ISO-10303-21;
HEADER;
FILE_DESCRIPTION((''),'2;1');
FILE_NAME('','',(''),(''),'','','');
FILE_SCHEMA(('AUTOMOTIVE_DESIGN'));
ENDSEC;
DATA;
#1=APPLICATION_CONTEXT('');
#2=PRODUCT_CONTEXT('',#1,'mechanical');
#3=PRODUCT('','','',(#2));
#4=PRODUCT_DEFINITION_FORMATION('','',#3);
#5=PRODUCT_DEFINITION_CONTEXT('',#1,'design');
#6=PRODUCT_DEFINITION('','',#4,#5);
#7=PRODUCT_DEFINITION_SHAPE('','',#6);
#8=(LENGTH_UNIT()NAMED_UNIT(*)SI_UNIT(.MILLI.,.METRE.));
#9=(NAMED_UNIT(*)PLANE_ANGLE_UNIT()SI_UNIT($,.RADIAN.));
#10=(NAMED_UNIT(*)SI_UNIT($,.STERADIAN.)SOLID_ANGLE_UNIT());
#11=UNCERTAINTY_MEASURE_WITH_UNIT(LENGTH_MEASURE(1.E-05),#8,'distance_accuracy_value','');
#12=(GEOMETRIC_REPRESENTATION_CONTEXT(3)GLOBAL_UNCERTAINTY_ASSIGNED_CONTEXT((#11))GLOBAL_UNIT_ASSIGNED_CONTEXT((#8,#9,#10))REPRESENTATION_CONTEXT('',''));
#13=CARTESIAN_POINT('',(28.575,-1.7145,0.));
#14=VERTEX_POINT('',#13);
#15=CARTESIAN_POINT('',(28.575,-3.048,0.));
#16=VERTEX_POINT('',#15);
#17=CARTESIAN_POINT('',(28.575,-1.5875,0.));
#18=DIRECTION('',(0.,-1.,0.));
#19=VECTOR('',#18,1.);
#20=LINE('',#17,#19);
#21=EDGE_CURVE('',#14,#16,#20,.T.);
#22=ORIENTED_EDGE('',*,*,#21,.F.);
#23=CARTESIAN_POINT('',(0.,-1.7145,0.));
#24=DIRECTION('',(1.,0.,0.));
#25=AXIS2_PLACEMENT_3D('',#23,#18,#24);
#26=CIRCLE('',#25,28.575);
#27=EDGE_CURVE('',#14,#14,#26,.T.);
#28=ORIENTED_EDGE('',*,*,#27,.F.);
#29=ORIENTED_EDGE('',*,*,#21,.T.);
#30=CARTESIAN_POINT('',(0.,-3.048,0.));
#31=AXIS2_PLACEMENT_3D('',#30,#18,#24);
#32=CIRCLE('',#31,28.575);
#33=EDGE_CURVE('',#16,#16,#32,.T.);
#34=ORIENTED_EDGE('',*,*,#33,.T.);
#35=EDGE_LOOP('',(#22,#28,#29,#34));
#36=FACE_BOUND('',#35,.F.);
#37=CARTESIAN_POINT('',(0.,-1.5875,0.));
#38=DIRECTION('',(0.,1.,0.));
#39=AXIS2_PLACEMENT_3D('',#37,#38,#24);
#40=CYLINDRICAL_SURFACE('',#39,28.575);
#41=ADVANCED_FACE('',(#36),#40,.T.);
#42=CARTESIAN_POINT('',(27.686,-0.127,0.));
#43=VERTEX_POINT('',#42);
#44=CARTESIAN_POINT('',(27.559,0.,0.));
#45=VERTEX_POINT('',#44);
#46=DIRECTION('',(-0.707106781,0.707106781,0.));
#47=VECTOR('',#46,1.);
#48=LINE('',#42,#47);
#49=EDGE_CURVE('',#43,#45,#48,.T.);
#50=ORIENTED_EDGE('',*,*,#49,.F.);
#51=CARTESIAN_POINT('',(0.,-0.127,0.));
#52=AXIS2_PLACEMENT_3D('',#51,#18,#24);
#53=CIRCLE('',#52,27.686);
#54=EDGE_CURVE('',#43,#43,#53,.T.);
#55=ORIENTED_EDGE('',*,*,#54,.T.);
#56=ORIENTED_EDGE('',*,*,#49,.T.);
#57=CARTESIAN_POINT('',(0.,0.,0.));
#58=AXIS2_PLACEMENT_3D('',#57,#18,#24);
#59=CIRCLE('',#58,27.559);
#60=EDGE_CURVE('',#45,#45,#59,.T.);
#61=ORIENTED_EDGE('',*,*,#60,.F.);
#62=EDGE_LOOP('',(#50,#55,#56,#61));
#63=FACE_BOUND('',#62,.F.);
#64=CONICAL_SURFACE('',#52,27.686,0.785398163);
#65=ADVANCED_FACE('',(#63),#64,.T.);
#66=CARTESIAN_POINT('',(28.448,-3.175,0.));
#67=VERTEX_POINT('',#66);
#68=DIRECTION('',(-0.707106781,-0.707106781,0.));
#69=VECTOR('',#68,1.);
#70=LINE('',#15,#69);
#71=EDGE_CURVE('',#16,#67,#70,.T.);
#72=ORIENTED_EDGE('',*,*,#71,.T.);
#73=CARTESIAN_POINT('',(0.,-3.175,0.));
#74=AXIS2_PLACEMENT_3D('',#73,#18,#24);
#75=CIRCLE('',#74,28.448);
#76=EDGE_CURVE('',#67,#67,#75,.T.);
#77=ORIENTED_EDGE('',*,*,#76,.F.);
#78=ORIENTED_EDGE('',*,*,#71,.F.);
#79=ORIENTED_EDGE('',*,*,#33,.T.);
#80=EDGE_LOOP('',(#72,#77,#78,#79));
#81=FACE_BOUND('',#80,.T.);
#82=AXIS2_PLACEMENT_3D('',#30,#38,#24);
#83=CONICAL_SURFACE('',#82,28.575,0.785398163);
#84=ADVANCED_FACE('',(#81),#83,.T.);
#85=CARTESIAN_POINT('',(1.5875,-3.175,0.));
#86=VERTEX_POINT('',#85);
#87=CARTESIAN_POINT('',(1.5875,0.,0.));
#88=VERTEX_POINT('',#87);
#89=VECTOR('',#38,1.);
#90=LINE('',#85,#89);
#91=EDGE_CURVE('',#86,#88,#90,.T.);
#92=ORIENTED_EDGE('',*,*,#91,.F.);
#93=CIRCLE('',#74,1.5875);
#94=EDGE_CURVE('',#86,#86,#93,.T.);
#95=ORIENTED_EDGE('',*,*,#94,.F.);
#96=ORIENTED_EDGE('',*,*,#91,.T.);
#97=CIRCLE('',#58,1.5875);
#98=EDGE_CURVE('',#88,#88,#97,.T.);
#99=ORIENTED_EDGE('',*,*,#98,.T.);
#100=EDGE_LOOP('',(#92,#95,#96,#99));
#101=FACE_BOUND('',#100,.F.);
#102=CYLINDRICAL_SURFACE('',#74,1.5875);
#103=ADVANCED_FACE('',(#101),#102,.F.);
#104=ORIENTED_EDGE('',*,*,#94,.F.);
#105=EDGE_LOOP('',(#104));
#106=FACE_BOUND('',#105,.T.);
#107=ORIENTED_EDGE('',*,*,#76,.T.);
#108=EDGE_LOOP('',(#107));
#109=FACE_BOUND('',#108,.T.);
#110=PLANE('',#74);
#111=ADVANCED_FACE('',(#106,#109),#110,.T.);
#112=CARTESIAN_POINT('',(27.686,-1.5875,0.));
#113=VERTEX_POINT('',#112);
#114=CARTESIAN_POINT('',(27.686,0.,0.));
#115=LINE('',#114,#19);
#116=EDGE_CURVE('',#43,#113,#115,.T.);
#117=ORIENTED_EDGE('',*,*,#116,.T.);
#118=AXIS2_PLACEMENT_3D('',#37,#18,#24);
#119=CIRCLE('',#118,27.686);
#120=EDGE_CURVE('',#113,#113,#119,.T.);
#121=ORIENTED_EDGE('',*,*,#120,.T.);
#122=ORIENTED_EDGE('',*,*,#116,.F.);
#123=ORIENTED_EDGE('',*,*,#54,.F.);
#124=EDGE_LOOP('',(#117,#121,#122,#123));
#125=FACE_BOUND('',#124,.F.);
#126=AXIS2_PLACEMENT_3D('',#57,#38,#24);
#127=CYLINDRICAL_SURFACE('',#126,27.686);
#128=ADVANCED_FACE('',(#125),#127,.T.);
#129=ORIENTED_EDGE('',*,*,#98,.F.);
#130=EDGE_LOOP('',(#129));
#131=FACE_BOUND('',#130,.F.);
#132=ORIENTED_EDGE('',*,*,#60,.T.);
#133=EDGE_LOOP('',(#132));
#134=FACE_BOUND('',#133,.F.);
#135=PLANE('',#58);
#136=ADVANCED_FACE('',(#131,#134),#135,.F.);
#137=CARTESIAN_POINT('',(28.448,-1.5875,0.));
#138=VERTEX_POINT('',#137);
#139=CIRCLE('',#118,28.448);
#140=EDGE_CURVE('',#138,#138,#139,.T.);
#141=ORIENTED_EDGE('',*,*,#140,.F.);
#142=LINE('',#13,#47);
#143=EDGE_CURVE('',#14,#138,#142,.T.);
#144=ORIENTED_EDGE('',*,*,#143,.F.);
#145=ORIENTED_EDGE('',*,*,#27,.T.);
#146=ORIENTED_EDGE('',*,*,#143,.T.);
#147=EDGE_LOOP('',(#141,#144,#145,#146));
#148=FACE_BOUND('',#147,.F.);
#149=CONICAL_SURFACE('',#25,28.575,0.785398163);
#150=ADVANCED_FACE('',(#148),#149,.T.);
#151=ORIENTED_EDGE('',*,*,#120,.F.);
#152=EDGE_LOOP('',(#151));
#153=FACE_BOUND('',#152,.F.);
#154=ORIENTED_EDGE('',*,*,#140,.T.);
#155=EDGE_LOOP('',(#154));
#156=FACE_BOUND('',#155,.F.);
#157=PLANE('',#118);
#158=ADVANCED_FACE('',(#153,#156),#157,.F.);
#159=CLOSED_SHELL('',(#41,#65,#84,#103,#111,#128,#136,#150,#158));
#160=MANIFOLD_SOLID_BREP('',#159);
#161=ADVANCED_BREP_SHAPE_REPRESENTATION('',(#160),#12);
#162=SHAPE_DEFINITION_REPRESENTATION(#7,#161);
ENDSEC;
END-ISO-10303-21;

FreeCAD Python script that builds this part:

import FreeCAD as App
import Part
import Sketcher
from FreeCAD import Vector
Q = App.Units.Quantity


def edges_at(feature, points):
    """Names of the edges that pass closest to the given points."""
    edges = feature.Shape.Edges
    near = lambda p: min(range(len(edges)), key=lambda i: edges[i].distToShape(Part.Vertex(*p))[0])
    return sorted({f"Edge{near(p) + 1}" for p in points})

doc = App.newDocument("Part")
body = doc.addObject("PartDesign::Body", "Body")

sketch1 = body.newObject("Sketcher::SketchObject", "Sketch")
sketch1.AttachmentSupport = (doc.getObject("XZ_Plane"), [""])
sketch1.MapMode = "FlatFace"
sketch1.addGeometry(Part.Circle(Vector(0, 0, 0), Vector(0, 0, 1), 28), False)
sketch1.addConstraint([
    Sketcher.Constraint("Coincident", 0, 3, -1, 1),
    Sketcher.Constraint("Diameter", 0, Q("2.18 in")),
])
pad1 = body.newObject("PartDesign::Pad", "Pad")
pad1.Profile = sketch1
pad1.Length = Q("0.0625 in")

sketch2 = body.newObject("Sketcher::SketchObject", "Sketch001")
sketch2.AttachmentSupport = (doc.getObject("XZ_Plane"), [""])
sketch2.MapMode = "FlatFace"
sketch2.AttachmentOffset = App.Placement(Vector(0, 0, 0.0625 * 25.4), App.Rotation())
sketch2.addGeometry(Part.Circle(Vector(0, 0, 0), Vector(0, 0, 1), 29), False)
sketch2.addConstraint([
    Sketcher.Constraint("Coincident", 0, 3, -1, 1),
    Sketcher.Constraint("Diameter", 0, Q("2.25 in")),
])
pad2 = body.newObject("PartDesign::Pad", "Pad001")
pad2.Profile = sketch2
pad2.Length = Q("0.0625 in")

sketch3 = body.newObject("Sketcher::SketchObject", "Sketch002")
sketch3.AttachmentSupport = (doc.getObject("XZ_Plane"), [""])
sketch3.MapMode = "FlatFace"
sketch3.AttachmentOffset = App.Placement(Vector(0, 0, 0.125 * 25.4), App.Rotation())
sketch3.addGeometry(Part.Circle(Vector(0, 0, 0), Vector(0, 0, 1), 1.6), False)
sketch3.addConstraint([
    Sketcher.Constraint("Coincident", 0, 3, -1, 1),
    Sketcher.Constraint("Diameter", 0, Q("0.125 in")),
])
pocket1 = body.newObject("PartDesign::Pocket", "Pocket")
pocket1.Profile = sketch3
pocket1.Type = "ThroughAll"
doc.recompute()

chamfer = body.newObject("PartDesign::Chamfer", "Chamfer")
chamfer.Base = (pocket1, edges_at(pocket1, [(-28.575, -3.175, 0), (-27.686, 0, 0), (-28.575, -1.587, 0)]))
chamfer.Size = Q("0.005 in")

doc.recompute()
